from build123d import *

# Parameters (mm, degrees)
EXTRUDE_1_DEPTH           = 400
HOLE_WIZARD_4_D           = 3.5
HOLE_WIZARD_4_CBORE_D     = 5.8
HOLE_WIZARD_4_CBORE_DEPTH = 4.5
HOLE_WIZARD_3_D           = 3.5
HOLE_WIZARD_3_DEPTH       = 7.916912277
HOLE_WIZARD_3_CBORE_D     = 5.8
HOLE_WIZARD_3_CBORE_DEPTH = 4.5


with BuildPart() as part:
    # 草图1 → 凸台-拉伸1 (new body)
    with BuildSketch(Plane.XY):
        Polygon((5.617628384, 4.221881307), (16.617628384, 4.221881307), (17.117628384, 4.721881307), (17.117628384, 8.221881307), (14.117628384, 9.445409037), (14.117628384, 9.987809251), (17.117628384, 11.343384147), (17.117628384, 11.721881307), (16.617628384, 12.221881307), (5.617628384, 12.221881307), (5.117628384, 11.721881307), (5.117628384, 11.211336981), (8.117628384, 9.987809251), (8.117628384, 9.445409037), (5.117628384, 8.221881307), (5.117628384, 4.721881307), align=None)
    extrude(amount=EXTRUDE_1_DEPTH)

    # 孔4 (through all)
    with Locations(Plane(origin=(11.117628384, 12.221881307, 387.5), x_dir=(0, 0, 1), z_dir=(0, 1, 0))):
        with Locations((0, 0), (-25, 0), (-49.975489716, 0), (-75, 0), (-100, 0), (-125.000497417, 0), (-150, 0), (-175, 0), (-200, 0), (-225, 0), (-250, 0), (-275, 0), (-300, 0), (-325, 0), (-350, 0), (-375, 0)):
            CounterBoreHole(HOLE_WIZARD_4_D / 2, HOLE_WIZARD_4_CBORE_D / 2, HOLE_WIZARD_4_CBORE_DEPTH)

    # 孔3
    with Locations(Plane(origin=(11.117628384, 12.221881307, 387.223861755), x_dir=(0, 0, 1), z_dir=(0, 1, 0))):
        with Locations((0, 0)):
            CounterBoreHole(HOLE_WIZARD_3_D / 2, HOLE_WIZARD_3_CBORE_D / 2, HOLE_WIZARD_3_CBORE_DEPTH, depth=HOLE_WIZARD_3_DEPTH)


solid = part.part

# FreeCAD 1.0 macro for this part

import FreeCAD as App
import Part
import Sketcher

V = App.Vector


def add_polygon(sketch, points):
    """Adds a closed chain of lines whose ends are joined by coincident constraints."""
    first, n = sketch.GeometryCount, len(points)
    for a, b in zip(points, points[1:] + points[:1]):
        sketch.addGeometry(Part.LineSegment(App.Vector(*a, 0), App.Vector(*b, 0)), False)
    for i in range(n):
        sketch.addConstraint(Sketcher.Constraint("Coincident", first + i, 2, first + (i + 1) % n, 1))

doc = App.newDocument("Part")
body = doc.addObject("PartDesign::Body", "Body")

sketch1 = body.newObject("Sketcher::SketchObject", "Sketch")
sketch1.AttachmentSupport = (doc.getObject("XY_Plane"), [""])
sketch1.MapMode = "FlatFace"
add_polygon(sketch1, [(5.617628, 4.221881), (16.617628, 4.221881), (17.117628, 4.721881), (17.117628, 8.221881), (14.117628, 9.445409), (14.117628, 9.987809), (17.117628, 11.343384), (17.117628, 11.721881), (16.617628, 12.221881), (5.617628, 12.221881), (5.117628, 11.721881), (5.117628, 11.211337), (8.117628, 9.987809), (8.117628, 9.445409), (5.117628, 8.221881), (5.117628, 4.721881)])
sketch1.addConstraint(Sketcher.Constraint("Horizontal", 0))
sketch1.addConstraint(Sketcher.Constraint("Vertical", 2))
sketch1.addConstraint(Sketcher.Constraint("Vertical", 4))
sketch1.addConstraint(Sketcher.Constraint("Vertical", 6))
sketch1.addConstraint(Sketcher.Constraint("Horizontal", 8))
sketch1.addConstraint(Sketcher.Constraint("Vertical", 10))
sketch1.addConstraint(Sketcher.Constraint("Vertical", 12))
sketch1.addConstraint(Sketcher.Constraint("Vertical", 14))
sketch1.addConstraint(Sketcher.Constraint("Perpendicular", 1, 7))
sketch1.addConstraint(Sketcher.Constraint("Perpendicular", 7, 9))
sketch1.addConstraint(Sketcher.Constraint("Parallel", 3, 11))
sketch1.addConstraint(Sketcher.Constraint("Perpendicular", 9, 15))
sketch1.addConstraint(Sketcher.Constraint("Horizontal", 6, 2, 9, 2))
sketch1.addConstraint(Sketcher.Constraint("Horizontal", 4, 2, 11, 2))
sketch1.addConstraint(Sketcher.Constraint("Horizontal", 3, 2, 12, 2))
sketch1.addConstraint(Sketcher.Constraint("Horizontal", 2, 2, 13, 2))
sketch1.addConstraint(Sketcher.Constraint("Horizontal", 1, 2, 14, 2))
sketch1.addConstraint(Sketcher.Constraint("Vertical", 2, 2, 5, 2))
sketch1.addConstraint(Sketcher.Constraint("Vertical", 0, 2, 7, 2))
sketch1.addConstraint(Sketcher.Constraint("Vertical", 10, 2, 13, 2))
sketch1.addConstraint(Sketcher.Constraint("Vertical", 8, 2, 15, 2))
sketch1.addConstraint(Sketcher.Constraint("Equal", 3, 11))
sketch1.addConstraint(Sketcher.Constraint("DistanceX", 0, 1, 0, 2, 11.0))
sketch1.addConstraint(Sketcher.Constraint("DistanceY", 2, 1, 2, 2, 3.5))
sketch1.addConstraint(Sketcher.Constraint("DistanceY", 0, 2, 2, 2, 4.0))
sketch1.addConstraint(Sketcher.Constraint("DistanceX", 3, 2, 2, 2, 3.0))
sketch1.addConstraint(Sketcher.Constraint("DistanceY", 1, 2, 6, 2, 7.0))
sketch1.addConstraint(Sketcher.Constraint("DistanceY", 4, 1, 4, 2, 0.5424))
sketch1.addConstraint(Sketcher.Constraint("Distance", 3, 3.239911))
sketch1.addConstraint(Sketcher.Constraint("Distance", 5, 3.292048))
sketch1.addConstraint(Sketcher.Constraint("DistanceX", -1, 1, 0, 2, 16.617628))
sketch1.addConstraint(Sketcher.Constraint("DistanceY", -1, 1, 0, 2, 4.221881))
pad1 = body.newObject("PartDesign::Pad", "Pad")
pad1.Profile = sketch1
pad1.Length = 400

sketch2 = body.newObject("Sketcher::SketchObject", "Sketch001")
sketch2.AttachmentSupport = (doc.getObject("XZ_Plane"), [""])
sketch2.MapMode = "FlatFace"
sketch2.AttachmentOffset = App.Placement(V(0, 0, -12.221881), App.Rotation())
sketch2.addGeometry(Part.Circle(V(11.117628, 387.5, 0), V(0, 0, 1), 1.75), False)
sketch2.addGeometry(Part.Circle(V(11.117628, 362.5, 0), V(0, 0, 1), 1.75), False)
sketch2.addGeometry(Part.Circle(V(11.117628, 337.52451, 0), V(0, 0, 1), 1.75), False)
sketch2.addGeometry(Part.Circle(V(11.117628, 312.5, 0), V(0, 0, 1), 1.75), False)
sketch2.addGeometry(Part.Circle(V(11.117628, 287.5, 0), V(0, 0, 1), 1.75), False)
sketch2.addGeometry(Part.Circle(V(11.117628, 262.499503, 0), V(0, 0, 1), 1.75), False)
sketch2.addGeometry(Part.Circle(V(11.117628, 237.5, 0), V(0, 0, 1), 1.75), False)
sketch2.addGeometry(Part.Circle(V(11.117628, 212.5, 0), V(0, 0, 1), 1.75), False)
sketch2.addGeometry(Part.Circle(V(11.117628, 187.5, 0), V(0, 0, 1), 1.75), False)
sketch2.addGeometry(Part.Circle(V(11.117628, 162.5, 0), V(0, 0, 1), 1.75), False)
sketch2.addGeometry(Part.Circle(V(11.117628, 137.5, 0), V(0, 0, 1), 1.75), False)
sketch2.addGeometry(Part.Circle(V(11.117628, 112.5, 0), V(0, 0, 1), 1.75), False)
sketch2.addGeometry(Part.Circle(V(11.117628, 87.5, 0), V(0, 0, 1), 1.75), False)
sketch2.addGeometry(Part.Circle(V(11.117628, 62.5, 0), V(0, 0, 1), 1.75), False)
sketch2.addGeometry(Part.Circle(V(11.117628, 37.5, 0), V(0, 0, 1), 1.75), False)
sketch2.addGeometry(Part.Circle(V(11.117628, 12.5, 0), V(0, 0, 1), 1.75), False)
sketch2.addConstraint(Sketcher.Constraint("Equal", 0, 1))
sketch2.addConstraint(Sketcher.Constraint("Equal", 1, 2))
sketch2.addConstraint(Sketcher.Constraint("Equal", 2, 3))
sketch2.addConstraint(Sketcher.Constraint("Equal", 3, 4))
sketch2.addConstraint(Sketcher.Constraint("Equal", 4, 5))
sketch2.addConstraint(Sketcher.Constraint("Equal", 5, 6))
sketch2.addConstraint(Sketcher.Constraint("Equal", 6, 7))
sketch2.addConstraint(Sketcher.Constraint("Equal", 7, 8))
sketch2.addConstraint(Sketcher.Constraint("Equal", 8, 9))
sketch2.addConstraint(Sketcher.Constraint("Equal", 9, 10))
sketch2.addConstraint(Sketcher.Constraint("Equal", 10, 11))
sketch2.addConstraint(Sketcher.Constraint("Equal", 11, 12))
sketch2.addConstraint(Sketcher.Constraint("Equal", 12, 13))
sketch2.addConstraint(Sketcher.Constraint("Equal", 13, 14))
sketch2.addConstraint(Sketcher.Constraint("Equal", 14, 15))
sketch2.addConstraint(Sketcher.Constraint("Vertical", 0, 3, 1, 3))
sketch2.addConstraint(Sketcher.Constraint("Vertical", 1, 3, 2, 3))
sketch2.addConstraint(Sketcher.Constraint("Vertical", 2, 3, 3, 3))
sketch2.addConstraint(Sketcher.Constraint("Vertical", 3, 3, 4, 3))
sketch2.addConstraint(Sketcher.Constraint("Vertical", 4, 3, 5, 3))
sketch2.addConstraint(Sketcher.Constraint("Vertical", 5, 3, 6, 3))
sketch2.addConstraint(Sketcher.Constraint("Vertical", 6, 3, 7, 3))
sketch2.addConstraint(Sketcher.Constraint("Vertical", 7, 3, 8, 3))
sketch2.addConstraint(Sketcher.Constraint("Vertical", 8, 3, 9, 3))
sketch2.addConstraint(Sketcher.Constraint("Vertical", 9, 3, 10, 3))
sketch2.addConstraint(Sketcher.Constraint("Vertical", 10, 3, 11, 3))
sketch2.addConstraint(Sketcher.Constraint("Vertical", 11, 3, 12, 3))
sketch2.addConstraint(Sketcher.Constraint("Vertical", 12, 3, 13, 3))
sketch2.addConstraint(Sketcher.Constraint("Vertical", 13, 3, 14, 3))
sketch2.addConstraint(Sketcher.Constraint("Vertical", 14, 3, 15, 3))
sketch2.addConstraint(Sketcher.Constraint("Diameter", 0, 3.5))
sketch2.addConstraint(Sketcher.Constraint("DistanceY", 1, 3, 0, 3, 25.0))
sketch2.addConstraint(Sketcher.Constraint("DistanceY", 3, 3, 1, 3, 50.0))
sketch2.addConstraint(Sketcher.Constraint("DistanceY", 4, 3, 3, 3, 25.0))
sketch2.addConstraint(Sketcher.Constraint("DistanceY", 6, 3, 4, 3, 50.0))
sketch2.addConstraint(Sketcher.Constraint("DistanceY", 7, 3, 6, 3, 25.0))
sketch2.addConstraint(Sketcher.Constraint("DistanceY", 8, 3, 7, 3, 25.0))
sketch2.addConstraint(Sketcher.Constraint("DistanceY", 9, 3, 8, 3, 25.0))
sketch2.addConstraint(Sketcher.Constraint("DistanceY", 10, 3, 9, 3, 25.0))
sketch2.addConstraint(Sketcher.Constraint("DistanceY", 11, 3, 10, 3, 25.0))
sketch2.addConstraint(Sketcher.Constraint("DistanceY", 12, 3, 11, 3, 25.0))
sketch2.addConstraint(Sketcher.Constraint("DistanceY", 13, 3, 12, 3, 25.0))
sketch2.addConstraint(Sketcher.Constraint("DistanceY", 14, 3, 13, 3, 25.0))
sketch2.addConstraint(Sketcher.Constraint("DistanceY", 15, 3, 14, 3, 25.0))
sketch2.addConstraint(Sketcher.Constraint("DistanceY", -1, 1, 0, 3, 387.5))
sketch2.addConstraint(Sketcher.Constraint("DistanceX", -1, 1, 0, 3, 11.117628))
sketch2.addConstraint(Sketcher.Constraint("DistanceY", -1, 1, 2, 3, 337.52451))
sketch2.addConstraint(Sketcher.Constraint("DistanceY", -1, 1, 5, 3, 262.499503))
doc.recompute()
hole = body.newObject("PartDesign::Hole", "Hole")
hole.Profile = sketch2
hole.ThreadType = "None"
hole.Diameter = 3.5
hole.DepthType = "ThroughAll"
hole.HoleCutType = "Counterbore"
hole.HoleCutDiameter = 5.8
hole.HoleCutDepth = 4.5
hole.Reversed = True

sketch3 = body.newObject("Sketcher::SketchObject", "Sketch002")
sketch3.AttachmentSupport = (doc.getObject("XZ_Plane"), [""])
sketch3.MapMode = "FlatFace"
sketch3.AttachmentOffset = App.Placement(V(0, 0, -12.221881), App.Rotation())
sketch3.addGeometry(Part.Circle(V(11.117628, 387.223862, 0), V(0, 0, 1), 1.75), False)
sketch3.addConstraint(Sketcher.Constraint("Diameter", 0, 3.5))
sketch3.addConstraint(Sketcher.Constraint("DistanceX", -1, 1, 0, 3, 11.117628))
sketch3.addConstraint(Sketcher.Constraint("DistanceY", -1, 1, 0, 3, 387.223862))
doc.recompute()
hole2 = body.newObject("PartDesign::Hole", "Hole001")
hole2.Profile = sketch3
hole2.ThreadType = "None"
hole2.Diameter = 3.5
hole2.DepthType = "Dimension"
hole2.Depth = 7.916912
hole2.DrillPoint = "Flat"
hole2.HoleCutType = "Counterbore"
hole2.HoleCutDiameter = 5.8
hole2.HoleCutDepth = 4.5
hole2.Reversed = True

doc.recompute()
